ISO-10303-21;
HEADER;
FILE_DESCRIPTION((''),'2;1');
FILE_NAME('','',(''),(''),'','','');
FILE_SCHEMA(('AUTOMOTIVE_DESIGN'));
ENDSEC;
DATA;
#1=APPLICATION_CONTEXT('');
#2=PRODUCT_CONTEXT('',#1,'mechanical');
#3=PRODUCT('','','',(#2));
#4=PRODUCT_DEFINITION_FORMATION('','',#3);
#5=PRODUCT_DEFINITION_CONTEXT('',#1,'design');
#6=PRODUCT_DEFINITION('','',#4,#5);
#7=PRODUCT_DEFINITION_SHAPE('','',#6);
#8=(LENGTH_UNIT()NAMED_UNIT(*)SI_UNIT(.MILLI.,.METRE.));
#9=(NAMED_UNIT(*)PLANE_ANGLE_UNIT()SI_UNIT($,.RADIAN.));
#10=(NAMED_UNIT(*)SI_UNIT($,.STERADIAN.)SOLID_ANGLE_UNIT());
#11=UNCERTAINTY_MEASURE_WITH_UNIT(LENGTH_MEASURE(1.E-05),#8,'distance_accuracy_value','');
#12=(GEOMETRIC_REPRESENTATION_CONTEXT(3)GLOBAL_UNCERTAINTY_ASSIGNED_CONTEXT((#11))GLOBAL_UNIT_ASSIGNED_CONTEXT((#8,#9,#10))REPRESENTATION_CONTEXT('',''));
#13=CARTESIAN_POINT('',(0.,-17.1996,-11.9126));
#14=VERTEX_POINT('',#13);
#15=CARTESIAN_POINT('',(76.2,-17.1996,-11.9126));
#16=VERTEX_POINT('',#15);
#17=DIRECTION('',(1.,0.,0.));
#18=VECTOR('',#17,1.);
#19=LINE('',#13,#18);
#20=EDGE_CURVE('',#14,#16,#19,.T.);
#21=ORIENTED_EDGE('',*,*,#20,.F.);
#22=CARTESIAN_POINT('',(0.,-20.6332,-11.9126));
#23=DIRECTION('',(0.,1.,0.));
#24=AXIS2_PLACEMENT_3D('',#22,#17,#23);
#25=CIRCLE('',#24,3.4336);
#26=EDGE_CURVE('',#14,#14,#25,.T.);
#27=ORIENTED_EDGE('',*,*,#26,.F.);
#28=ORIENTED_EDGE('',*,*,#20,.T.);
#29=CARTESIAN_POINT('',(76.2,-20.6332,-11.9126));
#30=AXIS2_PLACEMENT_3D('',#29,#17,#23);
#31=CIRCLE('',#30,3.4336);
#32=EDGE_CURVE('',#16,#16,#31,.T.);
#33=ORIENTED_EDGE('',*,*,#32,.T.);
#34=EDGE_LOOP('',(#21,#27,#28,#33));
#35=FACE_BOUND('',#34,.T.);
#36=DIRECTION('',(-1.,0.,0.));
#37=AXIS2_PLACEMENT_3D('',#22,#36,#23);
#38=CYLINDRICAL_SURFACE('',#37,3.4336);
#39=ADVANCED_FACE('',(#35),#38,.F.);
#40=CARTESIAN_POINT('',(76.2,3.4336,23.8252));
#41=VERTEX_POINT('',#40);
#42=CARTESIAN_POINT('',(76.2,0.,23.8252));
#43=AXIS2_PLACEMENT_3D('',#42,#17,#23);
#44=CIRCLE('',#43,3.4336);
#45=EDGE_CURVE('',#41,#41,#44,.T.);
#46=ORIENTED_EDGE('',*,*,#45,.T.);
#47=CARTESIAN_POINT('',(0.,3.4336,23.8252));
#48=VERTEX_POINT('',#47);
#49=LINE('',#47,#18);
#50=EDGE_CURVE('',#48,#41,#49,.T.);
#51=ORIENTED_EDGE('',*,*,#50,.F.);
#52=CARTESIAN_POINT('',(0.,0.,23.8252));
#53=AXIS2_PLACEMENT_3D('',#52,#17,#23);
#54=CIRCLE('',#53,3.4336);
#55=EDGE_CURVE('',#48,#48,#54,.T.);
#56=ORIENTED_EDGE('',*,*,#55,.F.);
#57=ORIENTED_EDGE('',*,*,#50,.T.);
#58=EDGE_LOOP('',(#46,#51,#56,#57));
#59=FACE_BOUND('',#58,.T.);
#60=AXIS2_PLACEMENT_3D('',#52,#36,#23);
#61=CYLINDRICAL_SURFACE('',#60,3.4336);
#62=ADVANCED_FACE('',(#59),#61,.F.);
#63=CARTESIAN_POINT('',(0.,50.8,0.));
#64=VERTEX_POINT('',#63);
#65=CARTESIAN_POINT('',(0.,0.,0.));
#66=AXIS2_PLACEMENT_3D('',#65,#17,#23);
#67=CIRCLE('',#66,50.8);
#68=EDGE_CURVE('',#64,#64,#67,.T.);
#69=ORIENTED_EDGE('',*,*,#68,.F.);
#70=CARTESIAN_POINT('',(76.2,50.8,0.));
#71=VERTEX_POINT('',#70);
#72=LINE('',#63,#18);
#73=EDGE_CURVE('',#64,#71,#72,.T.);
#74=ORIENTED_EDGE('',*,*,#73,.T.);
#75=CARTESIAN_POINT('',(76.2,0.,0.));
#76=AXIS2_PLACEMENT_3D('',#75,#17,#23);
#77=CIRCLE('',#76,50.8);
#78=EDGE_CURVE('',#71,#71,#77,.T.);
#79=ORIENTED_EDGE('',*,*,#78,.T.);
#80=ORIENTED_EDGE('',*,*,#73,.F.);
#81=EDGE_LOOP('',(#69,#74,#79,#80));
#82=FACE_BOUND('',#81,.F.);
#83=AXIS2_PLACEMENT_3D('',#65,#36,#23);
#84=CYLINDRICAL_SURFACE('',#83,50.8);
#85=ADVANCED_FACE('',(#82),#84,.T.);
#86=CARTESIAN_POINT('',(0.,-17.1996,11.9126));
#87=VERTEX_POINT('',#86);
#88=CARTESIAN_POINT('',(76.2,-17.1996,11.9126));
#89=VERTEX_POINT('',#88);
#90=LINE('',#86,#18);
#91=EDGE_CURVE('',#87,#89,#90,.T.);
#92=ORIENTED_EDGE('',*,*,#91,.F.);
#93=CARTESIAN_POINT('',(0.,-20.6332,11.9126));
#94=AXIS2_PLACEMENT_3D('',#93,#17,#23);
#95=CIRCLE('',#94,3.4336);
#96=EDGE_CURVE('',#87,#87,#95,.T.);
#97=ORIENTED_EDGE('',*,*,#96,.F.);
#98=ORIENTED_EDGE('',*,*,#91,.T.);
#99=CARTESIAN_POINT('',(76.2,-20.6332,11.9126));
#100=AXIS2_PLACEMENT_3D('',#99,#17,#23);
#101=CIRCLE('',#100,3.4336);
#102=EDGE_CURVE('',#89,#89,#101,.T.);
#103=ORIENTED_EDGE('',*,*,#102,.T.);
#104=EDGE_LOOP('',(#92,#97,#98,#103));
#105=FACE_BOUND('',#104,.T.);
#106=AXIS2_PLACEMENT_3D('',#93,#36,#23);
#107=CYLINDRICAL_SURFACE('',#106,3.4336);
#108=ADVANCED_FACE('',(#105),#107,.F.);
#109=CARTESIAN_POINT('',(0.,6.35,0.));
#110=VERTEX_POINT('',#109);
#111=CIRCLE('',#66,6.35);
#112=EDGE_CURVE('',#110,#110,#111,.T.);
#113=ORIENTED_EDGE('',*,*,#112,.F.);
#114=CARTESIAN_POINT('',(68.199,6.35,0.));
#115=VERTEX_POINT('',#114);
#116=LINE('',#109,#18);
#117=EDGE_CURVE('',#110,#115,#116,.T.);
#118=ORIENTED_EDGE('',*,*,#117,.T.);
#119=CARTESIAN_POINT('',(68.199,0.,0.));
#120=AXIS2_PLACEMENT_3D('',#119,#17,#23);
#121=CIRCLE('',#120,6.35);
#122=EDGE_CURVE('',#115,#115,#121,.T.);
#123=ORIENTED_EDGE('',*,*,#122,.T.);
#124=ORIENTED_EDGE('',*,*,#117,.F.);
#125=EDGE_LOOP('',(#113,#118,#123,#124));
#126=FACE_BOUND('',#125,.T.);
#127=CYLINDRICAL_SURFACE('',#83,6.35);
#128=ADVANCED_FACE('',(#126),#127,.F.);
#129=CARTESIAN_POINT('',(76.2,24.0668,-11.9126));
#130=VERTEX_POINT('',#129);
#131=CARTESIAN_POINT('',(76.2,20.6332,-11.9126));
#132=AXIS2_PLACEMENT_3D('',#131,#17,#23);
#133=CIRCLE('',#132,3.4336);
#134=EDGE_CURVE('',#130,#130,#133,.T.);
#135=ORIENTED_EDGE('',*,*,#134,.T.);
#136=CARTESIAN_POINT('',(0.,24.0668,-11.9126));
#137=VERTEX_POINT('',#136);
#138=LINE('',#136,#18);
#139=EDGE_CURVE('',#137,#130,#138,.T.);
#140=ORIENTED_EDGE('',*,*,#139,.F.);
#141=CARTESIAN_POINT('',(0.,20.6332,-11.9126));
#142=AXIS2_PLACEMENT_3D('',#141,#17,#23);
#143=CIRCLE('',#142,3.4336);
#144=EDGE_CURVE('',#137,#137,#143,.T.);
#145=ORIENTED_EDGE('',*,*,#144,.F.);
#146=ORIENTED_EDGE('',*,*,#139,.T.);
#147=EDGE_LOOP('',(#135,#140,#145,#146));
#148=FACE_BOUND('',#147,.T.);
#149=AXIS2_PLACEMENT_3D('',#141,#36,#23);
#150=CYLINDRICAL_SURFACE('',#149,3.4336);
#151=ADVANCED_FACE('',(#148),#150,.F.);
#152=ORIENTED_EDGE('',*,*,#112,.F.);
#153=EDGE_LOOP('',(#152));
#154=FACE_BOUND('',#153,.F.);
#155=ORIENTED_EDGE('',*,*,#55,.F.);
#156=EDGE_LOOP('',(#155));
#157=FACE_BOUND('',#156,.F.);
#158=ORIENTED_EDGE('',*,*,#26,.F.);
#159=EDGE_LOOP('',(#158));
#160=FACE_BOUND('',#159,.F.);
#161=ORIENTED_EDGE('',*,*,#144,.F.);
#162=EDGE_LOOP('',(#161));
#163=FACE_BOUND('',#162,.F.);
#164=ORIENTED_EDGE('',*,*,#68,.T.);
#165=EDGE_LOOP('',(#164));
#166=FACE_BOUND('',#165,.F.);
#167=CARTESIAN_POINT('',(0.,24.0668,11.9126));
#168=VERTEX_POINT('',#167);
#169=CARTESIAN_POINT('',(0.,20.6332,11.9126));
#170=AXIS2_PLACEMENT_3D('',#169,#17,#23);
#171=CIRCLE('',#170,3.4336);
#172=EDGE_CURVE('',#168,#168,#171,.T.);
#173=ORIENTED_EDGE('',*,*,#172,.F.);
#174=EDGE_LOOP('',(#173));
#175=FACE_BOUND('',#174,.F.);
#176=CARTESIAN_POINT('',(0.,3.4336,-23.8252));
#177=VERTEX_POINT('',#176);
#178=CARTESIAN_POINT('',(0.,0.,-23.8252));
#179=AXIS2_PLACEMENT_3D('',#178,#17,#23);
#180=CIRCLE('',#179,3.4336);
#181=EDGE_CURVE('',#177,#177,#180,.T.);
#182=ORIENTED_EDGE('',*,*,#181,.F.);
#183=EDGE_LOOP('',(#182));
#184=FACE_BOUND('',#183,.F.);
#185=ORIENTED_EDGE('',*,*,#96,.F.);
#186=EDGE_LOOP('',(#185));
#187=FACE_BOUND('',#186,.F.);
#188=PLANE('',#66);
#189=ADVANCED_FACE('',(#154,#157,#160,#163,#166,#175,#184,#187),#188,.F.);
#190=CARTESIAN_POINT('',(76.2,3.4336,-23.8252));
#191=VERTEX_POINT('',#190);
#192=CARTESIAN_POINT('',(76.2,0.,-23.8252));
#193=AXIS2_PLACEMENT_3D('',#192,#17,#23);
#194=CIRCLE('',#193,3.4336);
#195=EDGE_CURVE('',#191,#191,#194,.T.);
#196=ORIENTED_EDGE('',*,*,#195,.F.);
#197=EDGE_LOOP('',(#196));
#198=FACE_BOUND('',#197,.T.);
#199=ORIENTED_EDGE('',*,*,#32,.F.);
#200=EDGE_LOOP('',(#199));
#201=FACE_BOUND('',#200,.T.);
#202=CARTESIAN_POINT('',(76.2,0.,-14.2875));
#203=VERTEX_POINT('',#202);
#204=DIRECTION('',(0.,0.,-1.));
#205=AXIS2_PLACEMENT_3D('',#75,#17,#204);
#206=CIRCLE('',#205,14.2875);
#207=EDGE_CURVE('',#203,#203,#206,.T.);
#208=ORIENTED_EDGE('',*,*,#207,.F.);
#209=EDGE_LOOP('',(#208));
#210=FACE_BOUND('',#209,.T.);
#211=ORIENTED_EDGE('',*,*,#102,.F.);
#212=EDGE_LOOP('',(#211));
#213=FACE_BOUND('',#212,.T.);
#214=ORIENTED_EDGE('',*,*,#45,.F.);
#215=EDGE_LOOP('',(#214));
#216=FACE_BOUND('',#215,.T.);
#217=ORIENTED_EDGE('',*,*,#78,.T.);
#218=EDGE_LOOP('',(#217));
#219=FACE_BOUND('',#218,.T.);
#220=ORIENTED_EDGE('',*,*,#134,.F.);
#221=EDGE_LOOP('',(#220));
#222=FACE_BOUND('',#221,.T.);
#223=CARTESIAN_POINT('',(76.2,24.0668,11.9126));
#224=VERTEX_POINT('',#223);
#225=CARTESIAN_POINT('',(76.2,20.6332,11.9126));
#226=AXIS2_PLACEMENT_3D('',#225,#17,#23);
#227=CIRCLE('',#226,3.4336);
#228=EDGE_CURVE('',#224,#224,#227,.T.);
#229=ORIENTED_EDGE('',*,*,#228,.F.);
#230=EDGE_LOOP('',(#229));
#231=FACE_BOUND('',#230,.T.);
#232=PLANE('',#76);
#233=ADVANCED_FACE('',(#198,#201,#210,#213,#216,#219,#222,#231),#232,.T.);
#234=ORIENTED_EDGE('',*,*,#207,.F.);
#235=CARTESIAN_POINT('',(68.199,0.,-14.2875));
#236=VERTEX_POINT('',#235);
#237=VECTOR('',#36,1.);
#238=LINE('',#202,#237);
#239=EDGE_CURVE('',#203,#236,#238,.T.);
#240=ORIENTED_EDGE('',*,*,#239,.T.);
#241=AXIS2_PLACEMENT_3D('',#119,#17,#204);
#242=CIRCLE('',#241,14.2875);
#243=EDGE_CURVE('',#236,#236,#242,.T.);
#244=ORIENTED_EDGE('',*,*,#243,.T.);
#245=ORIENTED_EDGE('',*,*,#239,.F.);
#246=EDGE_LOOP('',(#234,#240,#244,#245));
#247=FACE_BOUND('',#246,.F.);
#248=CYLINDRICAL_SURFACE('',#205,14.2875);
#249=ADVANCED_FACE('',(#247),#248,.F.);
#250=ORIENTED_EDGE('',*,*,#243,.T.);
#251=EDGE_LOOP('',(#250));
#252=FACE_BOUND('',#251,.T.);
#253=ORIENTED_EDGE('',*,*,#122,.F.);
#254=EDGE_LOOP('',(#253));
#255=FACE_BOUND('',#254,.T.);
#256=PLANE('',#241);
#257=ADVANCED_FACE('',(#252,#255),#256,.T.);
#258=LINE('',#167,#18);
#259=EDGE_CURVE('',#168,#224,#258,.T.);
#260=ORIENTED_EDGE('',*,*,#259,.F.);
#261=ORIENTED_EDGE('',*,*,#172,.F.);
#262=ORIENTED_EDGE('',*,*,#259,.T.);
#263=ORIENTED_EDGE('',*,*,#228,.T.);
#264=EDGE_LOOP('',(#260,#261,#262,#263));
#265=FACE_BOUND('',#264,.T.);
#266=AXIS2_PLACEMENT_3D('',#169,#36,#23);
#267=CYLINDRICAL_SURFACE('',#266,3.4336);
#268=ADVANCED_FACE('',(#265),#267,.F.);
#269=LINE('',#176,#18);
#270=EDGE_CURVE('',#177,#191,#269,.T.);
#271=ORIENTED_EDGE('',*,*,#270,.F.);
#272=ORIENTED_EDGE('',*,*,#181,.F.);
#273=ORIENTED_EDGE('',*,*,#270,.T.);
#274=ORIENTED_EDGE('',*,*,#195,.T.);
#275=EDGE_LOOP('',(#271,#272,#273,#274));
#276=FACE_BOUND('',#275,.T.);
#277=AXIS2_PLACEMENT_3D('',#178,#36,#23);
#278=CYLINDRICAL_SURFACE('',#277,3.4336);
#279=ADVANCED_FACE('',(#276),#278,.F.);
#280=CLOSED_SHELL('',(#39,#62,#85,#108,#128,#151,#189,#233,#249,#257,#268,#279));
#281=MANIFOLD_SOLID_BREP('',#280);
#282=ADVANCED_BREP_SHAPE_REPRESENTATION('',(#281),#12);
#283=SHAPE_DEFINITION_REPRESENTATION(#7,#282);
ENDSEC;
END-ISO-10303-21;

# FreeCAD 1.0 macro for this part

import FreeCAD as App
import Part
import Sketcher

V = App.Vector
Q = App.Units.Quantity

doc = App.newDocument("Part")
body = doc.addObject("PartDesign::Body", "Body")

# Sketch on YZ plane
sketch1 = body.newObject("Sketcher::SketchObject", "Sketch")
sketch1.AttachmentSupport = (doc.getObject("YZ_Plane"), [""])
sketch1.MapMode = "FlatFace"
sketch1.addGeometry([
    Part.Circle(V(0, 0, 0), V(0, 0, 1), 50.8),  # 0
    Part.Circle(V(0, -23.8, 0), V(0, 0, 1), 3.4),  # 1
    Part.Circle(V(-20.6, -11.9, 0), V(0, 0, 1), 3.4),  # 2
    Part.Circle(V(0, 0, 0), V(0, 0, 1), 6.3),  # 3
    Part.Circle(V(20.6, -11.9, 0), V(0, 0, 1), 3.4),  # 4
    Part.Circle(V(-20.6, 11.9, 0), V(0, 0, 1), 3.4),  # 5
    Part.Circle(V(0, 23.8, 0), V(0, 0, 1), 3.4),  # 6
    Part.Circle(V(20.6, 11.9, 0), V(0, 0, 1), 3.4),  # 7
], False)
sketch1.addConstraint([
    Sketcher.Constraint("Coincident", 0, 3, -1, 1),
    Sketcher.Constraint("Coincident", 3, 3, -1, 1),
    Sketcher.Constraint("Equal", 1, 2),
    Sketcher.Constraint("Equal", 2, 4),
    Sketcher.Constraint("Equal", 4, 5),
    Sketcher.Constraint("Equal", 5, 6),
    Sketcher.Constraint("Equal", 6, 7),
    Sketcher.Constraint("Symmetric", 4, 3, 5, 3, -1, 1),
    Sketcher.Constraint("Symmetric", 1, 3, 6, 3, -1, 1),
    Sketcher.Constraint("Symmetric", 2, 3, 7, 3, -1, 1),
    Sketcher.Constraint("Symmetric", 2, 3, 4, 3, -2),
    Sketcher.Constraint("PointOnObject", 1, 3, -2),
    Sketcher.Constraint("Diameter", 0, Q("4 in")),
    Sketcher.Constraint("Diameter", 3, Q("0.5 in")),
    Sketcher.Constraint("DistanceY", 1, 3, -1, 1, Q("0.938 in")),
    Sketcher.Constraint("DistanceY", 2, 3, 5, 3, Q("0.938 in")),
    Sketcher.Constraint("Diameter", 1, 6.8672),
    Sketcher.Constraint("DistanceX", 2, 3, -1, 1, 20.6332),
])
pad1 = body.newObject("PartDesign::Pad", "Pad")
pad1.Profile = sketch1
pad1.Length = Q("3 in")

# Sketch on YZ plane
sketch2 = body.newObject("Sketcher::SketchObject", "Sketch001")
sketch2.AttachmentSupport = (doc.getObject("YZ_Plane"), [""])
sketch2.MapMode = "FlatFace"
sketch2.AttachmentOffset = App.Placement(V(0, 0, 3 * 25.4), App.Rotation())
sketch2.addGeometry([
    Part.Circle(V(0, 0, 0), V(0, 0, 1), 14),
    Part.Circle(V(0, 0, 0), V(0, 0, 1), 6),
], False)
sketch2.addConstraint([
    Sketcher.Constraint("Coincident", 0, 3, -1, 1),
    Sketcher.Constraint("Coincident", 1, 3, -1, 1),
    Sketcher.Constraint("Diameter", 0, Q("1.125 in")),
    Sketcher.Constraint("Diameter", 1, Q("0.5 in")),
])
pocket1 = body.newObject("PartDesign::Pocket", "Pocket")
pocket1.Profile = sketch2
pocket1.Length = Q("0.315 in")

doc.recompute()
